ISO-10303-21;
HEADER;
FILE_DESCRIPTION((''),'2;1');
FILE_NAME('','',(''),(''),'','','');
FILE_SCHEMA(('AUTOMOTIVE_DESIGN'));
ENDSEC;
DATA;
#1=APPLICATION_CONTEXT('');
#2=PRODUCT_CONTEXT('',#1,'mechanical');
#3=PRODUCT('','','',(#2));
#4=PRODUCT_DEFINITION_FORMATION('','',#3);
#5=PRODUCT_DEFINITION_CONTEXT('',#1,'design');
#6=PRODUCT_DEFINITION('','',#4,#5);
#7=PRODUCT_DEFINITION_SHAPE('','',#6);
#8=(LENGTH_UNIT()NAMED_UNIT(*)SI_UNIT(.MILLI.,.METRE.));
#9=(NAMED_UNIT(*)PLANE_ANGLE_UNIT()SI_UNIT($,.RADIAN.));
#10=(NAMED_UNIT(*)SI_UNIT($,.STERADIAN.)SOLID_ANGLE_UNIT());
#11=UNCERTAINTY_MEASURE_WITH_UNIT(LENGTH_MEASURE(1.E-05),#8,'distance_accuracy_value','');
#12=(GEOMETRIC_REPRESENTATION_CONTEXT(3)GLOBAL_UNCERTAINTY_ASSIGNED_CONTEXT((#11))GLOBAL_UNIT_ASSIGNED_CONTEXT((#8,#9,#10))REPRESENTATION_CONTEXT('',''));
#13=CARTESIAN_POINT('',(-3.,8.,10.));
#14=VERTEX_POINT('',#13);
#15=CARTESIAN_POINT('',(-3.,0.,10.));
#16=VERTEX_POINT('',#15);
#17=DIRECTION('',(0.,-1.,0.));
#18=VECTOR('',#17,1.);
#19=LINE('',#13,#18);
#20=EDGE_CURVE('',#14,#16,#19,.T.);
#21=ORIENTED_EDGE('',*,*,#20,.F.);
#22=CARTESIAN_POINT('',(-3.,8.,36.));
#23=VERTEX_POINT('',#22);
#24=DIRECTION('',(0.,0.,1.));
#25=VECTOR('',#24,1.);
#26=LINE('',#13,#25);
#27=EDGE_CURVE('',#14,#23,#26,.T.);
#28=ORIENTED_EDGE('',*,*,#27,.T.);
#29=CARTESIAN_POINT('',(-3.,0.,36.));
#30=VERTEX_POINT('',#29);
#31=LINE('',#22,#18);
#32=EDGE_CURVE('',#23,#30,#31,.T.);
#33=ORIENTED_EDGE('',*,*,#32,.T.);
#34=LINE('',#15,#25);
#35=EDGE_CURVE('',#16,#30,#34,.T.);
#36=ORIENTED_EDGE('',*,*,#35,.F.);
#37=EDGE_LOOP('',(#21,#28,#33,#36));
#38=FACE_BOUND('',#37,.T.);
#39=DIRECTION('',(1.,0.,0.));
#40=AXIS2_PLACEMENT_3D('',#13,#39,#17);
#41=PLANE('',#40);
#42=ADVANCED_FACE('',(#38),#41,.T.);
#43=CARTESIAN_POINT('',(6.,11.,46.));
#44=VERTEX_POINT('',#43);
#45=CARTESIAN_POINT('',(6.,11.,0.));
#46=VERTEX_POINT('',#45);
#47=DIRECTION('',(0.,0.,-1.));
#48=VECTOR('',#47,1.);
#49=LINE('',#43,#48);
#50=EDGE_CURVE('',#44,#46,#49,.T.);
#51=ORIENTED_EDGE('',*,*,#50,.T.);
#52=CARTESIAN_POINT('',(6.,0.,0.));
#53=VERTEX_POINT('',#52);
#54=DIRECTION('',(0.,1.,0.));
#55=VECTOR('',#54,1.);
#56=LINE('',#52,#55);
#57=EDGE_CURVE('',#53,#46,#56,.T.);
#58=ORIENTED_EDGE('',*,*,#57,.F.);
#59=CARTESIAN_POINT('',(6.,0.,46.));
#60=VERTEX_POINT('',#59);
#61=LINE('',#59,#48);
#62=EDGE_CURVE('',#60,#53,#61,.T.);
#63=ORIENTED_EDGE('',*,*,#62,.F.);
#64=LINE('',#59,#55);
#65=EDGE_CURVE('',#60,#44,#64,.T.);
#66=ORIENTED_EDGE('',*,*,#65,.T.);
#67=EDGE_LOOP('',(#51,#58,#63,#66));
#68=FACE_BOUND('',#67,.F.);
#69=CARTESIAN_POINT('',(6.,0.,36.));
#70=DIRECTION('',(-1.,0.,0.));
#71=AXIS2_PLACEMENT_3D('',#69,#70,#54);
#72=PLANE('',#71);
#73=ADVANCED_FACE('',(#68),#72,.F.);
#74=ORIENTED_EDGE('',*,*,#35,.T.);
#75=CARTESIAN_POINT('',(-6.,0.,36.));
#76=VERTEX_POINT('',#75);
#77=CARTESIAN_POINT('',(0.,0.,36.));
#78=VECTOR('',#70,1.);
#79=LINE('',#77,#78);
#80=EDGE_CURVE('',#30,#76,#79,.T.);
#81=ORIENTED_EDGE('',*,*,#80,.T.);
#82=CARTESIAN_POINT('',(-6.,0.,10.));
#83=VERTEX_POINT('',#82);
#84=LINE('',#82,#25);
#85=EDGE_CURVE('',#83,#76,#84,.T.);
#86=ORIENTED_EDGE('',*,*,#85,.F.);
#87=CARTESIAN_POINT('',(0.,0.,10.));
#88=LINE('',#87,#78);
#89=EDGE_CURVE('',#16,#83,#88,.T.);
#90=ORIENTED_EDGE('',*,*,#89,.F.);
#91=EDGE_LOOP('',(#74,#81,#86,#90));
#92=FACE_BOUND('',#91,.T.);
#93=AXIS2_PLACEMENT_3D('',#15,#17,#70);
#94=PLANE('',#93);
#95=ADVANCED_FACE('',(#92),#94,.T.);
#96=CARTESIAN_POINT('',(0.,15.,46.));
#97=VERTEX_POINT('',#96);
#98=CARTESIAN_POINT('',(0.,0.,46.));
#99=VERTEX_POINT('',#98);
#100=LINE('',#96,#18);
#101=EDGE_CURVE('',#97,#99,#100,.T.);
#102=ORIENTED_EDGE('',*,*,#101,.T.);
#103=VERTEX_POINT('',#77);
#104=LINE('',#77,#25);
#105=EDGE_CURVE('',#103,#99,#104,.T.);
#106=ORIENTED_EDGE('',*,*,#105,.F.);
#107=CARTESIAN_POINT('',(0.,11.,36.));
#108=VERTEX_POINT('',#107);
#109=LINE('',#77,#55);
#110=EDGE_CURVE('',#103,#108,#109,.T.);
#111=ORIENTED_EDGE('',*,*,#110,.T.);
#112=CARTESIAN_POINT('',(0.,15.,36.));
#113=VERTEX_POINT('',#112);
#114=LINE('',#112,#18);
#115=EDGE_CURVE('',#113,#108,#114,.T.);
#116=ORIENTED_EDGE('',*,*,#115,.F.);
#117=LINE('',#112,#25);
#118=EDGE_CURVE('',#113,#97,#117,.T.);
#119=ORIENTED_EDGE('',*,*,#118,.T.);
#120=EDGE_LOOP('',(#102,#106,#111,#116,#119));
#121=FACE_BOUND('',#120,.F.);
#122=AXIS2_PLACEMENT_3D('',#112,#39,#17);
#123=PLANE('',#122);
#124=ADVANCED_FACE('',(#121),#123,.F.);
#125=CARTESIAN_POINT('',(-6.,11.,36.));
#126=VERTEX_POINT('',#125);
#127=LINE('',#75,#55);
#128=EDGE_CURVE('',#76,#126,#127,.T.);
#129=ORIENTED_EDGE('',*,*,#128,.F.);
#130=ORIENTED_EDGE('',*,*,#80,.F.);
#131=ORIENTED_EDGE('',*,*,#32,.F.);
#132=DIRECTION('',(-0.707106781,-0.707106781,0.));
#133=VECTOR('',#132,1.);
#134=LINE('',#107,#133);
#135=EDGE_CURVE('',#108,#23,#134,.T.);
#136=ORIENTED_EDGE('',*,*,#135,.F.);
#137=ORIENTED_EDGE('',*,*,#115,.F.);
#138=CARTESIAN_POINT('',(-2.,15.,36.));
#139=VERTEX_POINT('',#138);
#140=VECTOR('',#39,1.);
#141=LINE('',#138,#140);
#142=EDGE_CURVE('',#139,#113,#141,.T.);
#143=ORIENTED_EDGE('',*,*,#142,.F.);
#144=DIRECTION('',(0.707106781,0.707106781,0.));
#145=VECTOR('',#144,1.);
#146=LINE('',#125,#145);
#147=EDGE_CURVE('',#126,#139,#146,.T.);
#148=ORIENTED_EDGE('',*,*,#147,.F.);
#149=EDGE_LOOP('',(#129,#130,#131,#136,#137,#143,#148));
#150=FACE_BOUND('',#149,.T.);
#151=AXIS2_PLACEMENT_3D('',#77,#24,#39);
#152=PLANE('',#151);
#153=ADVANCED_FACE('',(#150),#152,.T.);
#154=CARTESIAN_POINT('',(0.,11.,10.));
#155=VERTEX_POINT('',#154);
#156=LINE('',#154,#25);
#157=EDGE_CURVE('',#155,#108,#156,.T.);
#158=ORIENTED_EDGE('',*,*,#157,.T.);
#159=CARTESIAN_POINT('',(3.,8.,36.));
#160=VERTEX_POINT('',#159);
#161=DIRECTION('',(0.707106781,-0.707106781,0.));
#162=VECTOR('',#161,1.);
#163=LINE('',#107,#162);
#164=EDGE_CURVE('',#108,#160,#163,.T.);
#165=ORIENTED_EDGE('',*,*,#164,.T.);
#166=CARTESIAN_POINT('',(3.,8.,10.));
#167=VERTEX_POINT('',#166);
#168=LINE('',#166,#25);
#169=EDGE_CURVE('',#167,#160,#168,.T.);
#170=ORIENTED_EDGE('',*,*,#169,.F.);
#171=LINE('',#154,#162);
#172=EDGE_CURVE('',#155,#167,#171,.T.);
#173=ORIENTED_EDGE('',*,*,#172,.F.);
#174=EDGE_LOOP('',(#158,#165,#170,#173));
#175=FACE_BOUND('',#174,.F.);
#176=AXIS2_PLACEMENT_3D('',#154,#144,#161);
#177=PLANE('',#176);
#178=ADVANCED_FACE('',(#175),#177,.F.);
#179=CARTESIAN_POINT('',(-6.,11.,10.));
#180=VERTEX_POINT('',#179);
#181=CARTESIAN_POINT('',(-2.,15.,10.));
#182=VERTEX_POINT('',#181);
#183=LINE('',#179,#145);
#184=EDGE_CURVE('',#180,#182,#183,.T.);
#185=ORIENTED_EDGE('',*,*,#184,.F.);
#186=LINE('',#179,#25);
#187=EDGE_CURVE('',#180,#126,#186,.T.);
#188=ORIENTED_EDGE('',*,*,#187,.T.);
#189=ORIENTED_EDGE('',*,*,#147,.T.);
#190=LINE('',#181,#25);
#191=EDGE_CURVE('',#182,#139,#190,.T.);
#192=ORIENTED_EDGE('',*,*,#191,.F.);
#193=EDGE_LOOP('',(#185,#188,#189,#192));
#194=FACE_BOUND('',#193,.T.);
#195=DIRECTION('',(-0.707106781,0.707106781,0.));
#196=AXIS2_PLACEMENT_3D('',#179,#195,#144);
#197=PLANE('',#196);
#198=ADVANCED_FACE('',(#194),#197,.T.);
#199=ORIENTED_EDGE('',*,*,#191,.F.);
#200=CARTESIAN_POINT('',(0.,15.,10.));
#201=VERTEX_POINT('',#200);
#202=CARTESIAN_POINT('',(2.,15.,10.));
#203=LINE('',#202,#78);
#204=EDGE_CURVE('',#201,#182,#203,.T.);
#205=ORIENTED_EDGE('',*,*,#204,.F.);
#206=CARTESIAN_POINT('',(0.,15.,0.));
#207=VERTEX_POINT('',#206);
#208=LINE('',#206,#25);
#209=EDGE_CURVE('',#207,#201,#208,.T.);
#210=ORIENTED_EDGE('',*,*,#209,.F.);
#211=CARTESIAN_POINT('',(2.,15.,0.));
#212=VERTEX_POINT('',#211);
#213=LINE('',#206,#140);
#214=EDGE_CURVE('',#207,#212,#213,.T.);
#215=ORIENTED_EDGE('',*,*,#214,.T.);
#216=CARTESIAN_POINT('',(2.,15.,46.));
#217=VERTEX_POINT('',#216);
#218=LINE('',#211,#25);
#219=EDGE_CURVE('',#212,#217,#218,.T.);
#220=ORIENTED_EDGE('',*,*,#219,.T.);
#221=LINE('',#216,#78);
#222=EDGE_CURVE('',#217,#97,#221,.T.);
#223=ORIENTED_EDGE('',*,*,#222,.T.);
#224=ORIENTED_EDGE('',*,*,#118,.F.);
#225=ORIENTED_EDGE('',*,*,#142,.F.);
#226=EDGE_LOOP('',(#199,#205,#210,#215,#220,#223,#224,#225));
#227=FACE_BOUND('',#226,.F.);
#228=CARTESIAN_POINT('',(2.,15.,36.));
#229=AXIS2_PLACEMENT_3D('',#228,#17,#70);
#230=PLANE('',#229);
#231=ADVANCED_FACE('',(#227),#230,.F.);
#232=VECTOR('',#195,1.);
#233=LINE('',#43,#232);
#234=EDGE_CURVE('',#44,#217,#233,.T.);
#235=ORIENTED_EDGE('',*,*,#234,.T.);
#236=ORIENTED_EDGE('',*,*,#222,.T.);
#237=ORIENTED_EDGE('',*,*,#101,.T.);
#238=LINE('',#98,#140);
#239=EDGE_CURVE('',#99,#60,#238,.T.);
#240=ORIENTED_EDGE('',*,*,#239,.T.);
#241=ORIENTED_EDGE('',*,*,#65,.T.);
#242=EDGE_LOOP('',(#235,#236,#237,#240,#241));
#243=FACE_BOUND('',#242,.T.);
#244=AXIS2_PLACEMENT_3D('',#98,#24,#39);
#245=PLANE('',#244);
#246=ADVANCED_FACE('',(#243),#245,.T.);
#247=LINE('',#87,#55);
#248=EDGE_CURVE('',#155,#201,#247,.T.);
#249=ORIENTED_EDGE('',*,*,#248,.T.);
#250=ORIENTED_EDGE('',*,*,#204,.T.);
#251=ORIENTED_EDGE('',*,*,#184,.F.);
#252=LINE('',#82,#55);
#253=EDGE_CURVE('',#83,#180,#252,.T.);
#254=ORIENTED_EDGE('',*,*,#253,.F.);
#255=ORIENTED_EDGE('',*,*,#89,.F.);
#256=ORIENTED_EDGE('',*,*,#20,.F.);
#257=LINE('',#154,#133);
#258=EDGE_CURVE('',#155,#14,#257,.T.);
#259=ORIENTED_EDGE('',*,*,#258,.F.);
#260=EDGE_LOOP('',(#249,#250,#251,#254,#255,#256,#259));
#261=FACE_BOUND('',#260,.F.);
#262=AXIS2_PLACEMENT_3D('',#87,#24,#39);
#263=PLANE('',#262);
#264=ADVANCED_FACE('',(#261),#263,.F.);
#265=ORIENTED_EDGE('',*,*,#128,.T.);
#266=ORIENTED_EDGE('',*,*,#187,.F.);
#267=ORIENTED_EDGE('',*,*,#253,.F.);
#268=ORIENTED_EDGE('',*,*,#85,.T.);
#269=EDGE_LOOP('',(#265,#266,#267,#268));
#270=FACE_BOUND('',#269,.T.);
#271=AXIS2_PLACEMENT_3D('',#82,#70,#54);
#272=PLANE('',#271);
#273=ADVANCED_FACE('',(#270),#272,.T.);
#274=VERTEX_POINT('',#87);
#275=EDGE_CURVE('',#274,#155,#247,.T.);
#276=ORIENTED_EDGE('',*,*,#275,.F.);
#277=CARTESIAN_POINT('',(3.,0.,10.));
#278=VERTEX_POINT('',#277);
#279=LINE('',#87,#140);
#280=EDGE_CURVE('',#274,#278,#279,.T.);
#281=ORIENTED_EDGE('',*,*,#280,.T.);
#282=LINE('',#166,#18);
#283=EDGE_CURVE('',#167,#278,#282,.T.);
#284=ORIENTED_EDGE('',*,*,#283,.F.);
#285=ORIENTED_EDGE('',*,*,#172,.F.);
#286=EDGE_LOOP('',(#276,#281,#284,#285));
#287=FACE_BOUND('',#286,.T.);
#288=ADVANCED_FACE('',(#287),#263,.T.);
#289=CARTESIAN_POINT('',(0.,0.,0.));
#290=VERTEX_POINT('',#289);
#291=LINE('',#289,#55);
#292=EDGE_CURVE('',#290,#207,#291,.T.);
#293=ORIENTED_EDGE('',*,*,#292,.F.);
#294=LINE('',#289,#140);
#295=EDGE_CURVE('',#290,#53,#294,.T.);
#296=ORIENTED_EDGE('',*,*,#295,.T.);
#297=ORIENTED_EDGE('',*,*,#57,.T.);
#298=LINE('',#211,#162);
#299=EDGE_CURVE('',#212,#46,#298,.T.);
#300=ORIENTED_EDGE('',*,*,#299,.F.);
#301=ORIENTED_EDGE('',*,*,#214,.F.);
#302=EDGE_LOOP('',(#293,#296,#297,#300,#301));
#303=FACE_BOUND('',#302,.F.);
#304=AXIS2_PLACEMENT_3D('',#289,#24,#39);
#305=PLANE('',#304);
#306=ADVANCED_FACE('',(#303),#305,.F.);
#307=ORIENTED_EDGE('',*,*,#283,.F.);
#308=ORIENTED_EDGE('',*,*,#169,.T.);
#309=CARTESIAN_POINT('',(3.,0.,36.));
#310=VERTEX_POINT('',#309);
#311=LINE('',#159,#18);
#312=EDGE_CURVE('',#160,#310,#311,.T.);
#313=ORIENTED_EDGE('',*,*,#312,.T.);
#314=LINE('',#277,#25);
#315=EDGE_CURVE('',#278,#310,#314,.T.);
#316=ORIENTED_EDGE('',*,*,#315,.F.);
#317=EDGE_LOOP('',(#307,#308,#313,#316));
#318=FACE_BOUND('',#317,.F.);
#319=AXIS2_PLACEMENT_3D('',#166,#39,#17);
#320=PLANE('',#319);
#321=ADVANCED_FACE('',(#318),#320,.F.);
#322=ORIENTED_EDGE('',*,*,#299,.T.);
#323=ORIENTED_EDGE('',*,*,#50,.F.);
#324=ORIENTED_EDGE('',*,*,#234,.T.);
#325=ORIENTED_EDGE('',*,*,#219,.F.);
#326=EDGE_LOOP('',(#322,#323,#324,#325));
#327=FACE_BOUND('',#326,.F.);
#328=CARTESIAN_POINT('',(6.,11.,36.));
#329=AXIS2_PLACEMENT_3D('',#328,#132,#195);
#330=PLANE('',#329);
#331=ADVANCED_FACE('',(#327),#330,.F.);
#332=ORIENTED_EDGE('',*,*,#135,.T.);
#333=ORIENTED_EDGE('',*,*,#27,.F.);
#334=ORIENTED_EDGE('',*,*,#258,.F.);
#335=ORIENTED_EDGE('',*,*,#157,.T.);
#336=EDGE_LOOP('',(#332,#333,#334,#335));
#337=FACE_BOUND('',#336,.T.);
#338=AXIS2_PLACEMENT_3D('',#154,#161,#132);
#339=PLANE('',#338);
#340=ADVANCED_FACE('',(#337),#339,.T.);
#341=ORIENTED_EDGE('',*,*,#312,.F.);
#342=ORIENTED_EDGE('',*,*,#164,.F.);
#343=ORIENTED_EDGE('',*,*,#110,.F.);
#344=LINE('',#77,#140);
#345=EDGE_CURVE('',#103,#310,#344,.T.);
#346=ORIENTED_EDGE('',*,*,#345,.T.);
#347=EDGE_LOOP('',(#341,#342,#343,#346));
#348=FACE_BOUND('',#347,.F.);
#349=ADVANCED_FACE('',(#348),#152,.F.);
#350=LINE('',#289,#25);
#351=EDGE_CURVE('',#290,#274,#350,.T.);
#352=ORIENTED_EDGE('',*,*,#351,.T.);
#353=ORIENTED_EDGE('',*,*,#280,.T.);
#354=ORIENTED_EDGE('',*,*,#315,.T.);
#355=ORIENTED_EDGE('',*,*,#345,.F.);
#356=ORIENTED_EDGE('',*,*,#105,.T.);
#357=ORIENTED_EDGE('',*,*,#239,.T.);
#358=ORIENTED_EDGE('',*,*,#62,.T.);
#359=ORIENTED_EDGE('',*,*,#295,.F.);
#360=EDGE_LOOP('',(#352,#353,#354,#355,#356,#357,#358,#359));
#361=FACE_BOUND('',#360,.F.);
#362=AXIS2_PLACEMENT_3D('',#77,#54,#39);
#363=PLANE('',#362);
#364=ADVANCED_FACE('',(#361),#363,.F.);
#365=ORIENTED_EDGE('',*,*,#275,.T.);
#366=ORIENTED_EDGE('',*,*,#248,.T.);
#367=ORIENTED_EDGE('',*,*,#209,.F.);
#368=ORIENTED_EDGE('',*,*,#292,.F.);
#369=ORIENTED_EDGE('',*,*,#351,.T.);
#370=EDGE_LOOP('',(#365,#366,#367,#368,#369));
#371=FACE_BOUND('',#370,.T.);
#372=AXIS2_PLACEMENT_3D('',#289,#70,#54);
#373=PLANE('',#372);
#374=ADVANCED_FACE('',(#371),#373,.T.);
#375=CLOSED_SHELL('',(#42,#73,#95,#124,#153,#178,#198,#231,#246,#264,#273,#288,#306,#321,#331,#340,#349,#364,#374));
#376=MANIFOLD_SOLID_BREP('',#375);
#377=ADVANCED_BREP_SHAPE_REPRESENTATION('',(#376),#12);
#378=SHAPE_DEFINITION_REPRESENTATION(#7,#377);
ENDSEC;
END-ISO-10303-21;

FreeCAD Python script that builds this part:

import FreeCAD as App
import Part
import Sketcher
from FreeCAD import Vector
Q = App.Units.Quantity


def add_polygon(sketch, points):
    """Adds a closed chain of lines whose ends are joined by coincident constraints."""
    first, n = sketch.GeometryCount, len(points)
    for a, b in zip(points, points[1:] + points[:1]):
        sketch.addGeometry(Part.LineSegment(App.Vector(*a, 0), App.Vector(*b, 0)), False)
    for i in range(n):
        sketch.addConstraint(Sketcher.Constraint("Coincident", first + i, 2, first + (i + 1) % n, 1))

doc = App.newDocument("Part")
body = doc.addObject("PartDesign::Body", "Body")

sketch1 = body.newObject("Sketcher::SketchObject", "Sketch")
sketch1.AttachmentSupport = (doc.getObject("XY_Plane"), [""])
sketch1.MapMode = "FlatFace"
add_polygon(sketch1, [(0, 15), (0, 0), (6, 0), (6, 11), (2, 15)])
sketch1.addConstraint([
    Sketcher.Constraint("Vertical", 0),
    Sketcher.Constraint("Horizontal", 1),
    Sketcher.Constraint("Vertical", 2),
    Sketcher.Constraint("Horizontal", 4),
    Sketcher.Constraint("Coincident", 0, 2, -1, 1),
    Sketcher.Constraint("DistanceX", 1, 1, 1, 2, Q("6 mm")),
    Sketcher.Constraint("DistanceX", 4, 2, 4, 1, Q("2 mm")),
    Sketcher.Constraint("DistanceY", 0, 2, 0, 1, Q("15 mm")),
    Sketcher.Constraint("DistanceY", 2, 1, 2, 2, Q("11 mm")),
])
pad1 = body.newObject("PartDesign::Pad", "Pad")
pad1.Profile = sketch1
pad1.Length = 10

sketch2 = body.newObject("Sketcher::SketchObject", "Sketch001")
sketch2.AttachmentSupport = (doc.getObject("XY_Plane"), [""])
sketch2.MapMode = "FlatFace"
sketch2.AttachmentOffset = App.Placement(Vector(0, 0, 10), App.Rotation())
add_polygon(sketch2, [(2, 15), (-2, 15), (-6, 11), (-6, 0), (-3, 0), (-3, 8), (0, 11), (3, 8), (3, 0), (6, 0), (6, 11)])
sketch2.addConstraint([
    Sketcher.Constraint("Horizontal", 0),
    Sketcher.Constraint("Vertical", 2),
    Sketcher.Constraint("Horizontal", 3),
    Sketcher.Constraint("Vertical", 4),
    Sketcher.Constraint("Vertical", 7),
    Sketcher.Constraint("Horizontal", 8),
    Sketcher.Constraint("Vertical", 9),
    Sketcher.Constraint("Symmetric", 3, 2, 7, 2, -1, 1),
    Sketcher.Constraint("Symmetric", 2, 2, 8, 2, -2),
    Sketcher.Constraint("PointOnObject", 5, 2, -2),
    Sketcher.Constraint("Parallel", 1, 5),
    Sketcher.Constraint("Perpendicular", 5, 6),
    Sketcher.Constraint("Parallel", 6, 10),
    Sketcher.Constraint("Horizontal", 1, 2, 5, 2),
    Sketcher.Constraint("Horizontal", 4, 2, 6, 2),
    Sketcher.Constraint("Horizontal", 5, 2, 9, 2),
    Sketcher.Constraint("DistanceX", 3, 1, 3, 2, Q("3 mm")),
    Sketcher.Constraint("DistanceX", 3, 2, -1, 1, Q("3 mm")),
    Sketcher.Constraint("DistanceX", 0, 2, 0, 1, Q("4 mm")),
    Sketcher.Constraint("DistanceY", 2, 2, 2, 1, Q("11 mm")),
])
pad2 = body.newObject("PartDesign::Pad", "Pad001")
pad2.Profile = sketch2
pad2.Length = 26

sketch3 = body.newObject("Sketcher::SketchObject", "Sketch002")
sketch3.AttachmentSupport = (doc.getObject("XY_Plane"), [""])
sketch3.MapMode = "FlatFace"
sketch3.AttachmentOffset = App.Placement(Vector(0, 0, 36), App.Rotation())
add_polygon(sketch3, [(6, 11), (2, 15), (0, 15), (0, 0), (6, 0)])
sketch3.addConstraint([
    Sketcher.Constraint("Horizontal", 1),
    Sketcher.Constraint("Vertical", 2),
    Sketcher.Constraint("Horizontal", 3),
    Sketcher.Constraint("Vertical", 4),
    Sketcher.Constraint("Coincident", 2, 2, -1, 1),
    Sketcher.Constraint("DistanceX", 1, 2, 1, 1, Q("2 mm")),
    Sketcher.Constraint("DistanceX", 3, 1, 3, 2, Q("6 mm")),
    Sketcher.Constraint("DistanceY", 2, 2, 2, 1, Q("15 mm")),
    Sketcher.Constraint("DistanceY", 4, 1, 4, 2, Q("11 mm")),
])
pad3 = body.newObject("PartDesign::Pad", "Pad002")
pad3.Profile = sketch3
pad3.Length = 10

doc.recompute()
